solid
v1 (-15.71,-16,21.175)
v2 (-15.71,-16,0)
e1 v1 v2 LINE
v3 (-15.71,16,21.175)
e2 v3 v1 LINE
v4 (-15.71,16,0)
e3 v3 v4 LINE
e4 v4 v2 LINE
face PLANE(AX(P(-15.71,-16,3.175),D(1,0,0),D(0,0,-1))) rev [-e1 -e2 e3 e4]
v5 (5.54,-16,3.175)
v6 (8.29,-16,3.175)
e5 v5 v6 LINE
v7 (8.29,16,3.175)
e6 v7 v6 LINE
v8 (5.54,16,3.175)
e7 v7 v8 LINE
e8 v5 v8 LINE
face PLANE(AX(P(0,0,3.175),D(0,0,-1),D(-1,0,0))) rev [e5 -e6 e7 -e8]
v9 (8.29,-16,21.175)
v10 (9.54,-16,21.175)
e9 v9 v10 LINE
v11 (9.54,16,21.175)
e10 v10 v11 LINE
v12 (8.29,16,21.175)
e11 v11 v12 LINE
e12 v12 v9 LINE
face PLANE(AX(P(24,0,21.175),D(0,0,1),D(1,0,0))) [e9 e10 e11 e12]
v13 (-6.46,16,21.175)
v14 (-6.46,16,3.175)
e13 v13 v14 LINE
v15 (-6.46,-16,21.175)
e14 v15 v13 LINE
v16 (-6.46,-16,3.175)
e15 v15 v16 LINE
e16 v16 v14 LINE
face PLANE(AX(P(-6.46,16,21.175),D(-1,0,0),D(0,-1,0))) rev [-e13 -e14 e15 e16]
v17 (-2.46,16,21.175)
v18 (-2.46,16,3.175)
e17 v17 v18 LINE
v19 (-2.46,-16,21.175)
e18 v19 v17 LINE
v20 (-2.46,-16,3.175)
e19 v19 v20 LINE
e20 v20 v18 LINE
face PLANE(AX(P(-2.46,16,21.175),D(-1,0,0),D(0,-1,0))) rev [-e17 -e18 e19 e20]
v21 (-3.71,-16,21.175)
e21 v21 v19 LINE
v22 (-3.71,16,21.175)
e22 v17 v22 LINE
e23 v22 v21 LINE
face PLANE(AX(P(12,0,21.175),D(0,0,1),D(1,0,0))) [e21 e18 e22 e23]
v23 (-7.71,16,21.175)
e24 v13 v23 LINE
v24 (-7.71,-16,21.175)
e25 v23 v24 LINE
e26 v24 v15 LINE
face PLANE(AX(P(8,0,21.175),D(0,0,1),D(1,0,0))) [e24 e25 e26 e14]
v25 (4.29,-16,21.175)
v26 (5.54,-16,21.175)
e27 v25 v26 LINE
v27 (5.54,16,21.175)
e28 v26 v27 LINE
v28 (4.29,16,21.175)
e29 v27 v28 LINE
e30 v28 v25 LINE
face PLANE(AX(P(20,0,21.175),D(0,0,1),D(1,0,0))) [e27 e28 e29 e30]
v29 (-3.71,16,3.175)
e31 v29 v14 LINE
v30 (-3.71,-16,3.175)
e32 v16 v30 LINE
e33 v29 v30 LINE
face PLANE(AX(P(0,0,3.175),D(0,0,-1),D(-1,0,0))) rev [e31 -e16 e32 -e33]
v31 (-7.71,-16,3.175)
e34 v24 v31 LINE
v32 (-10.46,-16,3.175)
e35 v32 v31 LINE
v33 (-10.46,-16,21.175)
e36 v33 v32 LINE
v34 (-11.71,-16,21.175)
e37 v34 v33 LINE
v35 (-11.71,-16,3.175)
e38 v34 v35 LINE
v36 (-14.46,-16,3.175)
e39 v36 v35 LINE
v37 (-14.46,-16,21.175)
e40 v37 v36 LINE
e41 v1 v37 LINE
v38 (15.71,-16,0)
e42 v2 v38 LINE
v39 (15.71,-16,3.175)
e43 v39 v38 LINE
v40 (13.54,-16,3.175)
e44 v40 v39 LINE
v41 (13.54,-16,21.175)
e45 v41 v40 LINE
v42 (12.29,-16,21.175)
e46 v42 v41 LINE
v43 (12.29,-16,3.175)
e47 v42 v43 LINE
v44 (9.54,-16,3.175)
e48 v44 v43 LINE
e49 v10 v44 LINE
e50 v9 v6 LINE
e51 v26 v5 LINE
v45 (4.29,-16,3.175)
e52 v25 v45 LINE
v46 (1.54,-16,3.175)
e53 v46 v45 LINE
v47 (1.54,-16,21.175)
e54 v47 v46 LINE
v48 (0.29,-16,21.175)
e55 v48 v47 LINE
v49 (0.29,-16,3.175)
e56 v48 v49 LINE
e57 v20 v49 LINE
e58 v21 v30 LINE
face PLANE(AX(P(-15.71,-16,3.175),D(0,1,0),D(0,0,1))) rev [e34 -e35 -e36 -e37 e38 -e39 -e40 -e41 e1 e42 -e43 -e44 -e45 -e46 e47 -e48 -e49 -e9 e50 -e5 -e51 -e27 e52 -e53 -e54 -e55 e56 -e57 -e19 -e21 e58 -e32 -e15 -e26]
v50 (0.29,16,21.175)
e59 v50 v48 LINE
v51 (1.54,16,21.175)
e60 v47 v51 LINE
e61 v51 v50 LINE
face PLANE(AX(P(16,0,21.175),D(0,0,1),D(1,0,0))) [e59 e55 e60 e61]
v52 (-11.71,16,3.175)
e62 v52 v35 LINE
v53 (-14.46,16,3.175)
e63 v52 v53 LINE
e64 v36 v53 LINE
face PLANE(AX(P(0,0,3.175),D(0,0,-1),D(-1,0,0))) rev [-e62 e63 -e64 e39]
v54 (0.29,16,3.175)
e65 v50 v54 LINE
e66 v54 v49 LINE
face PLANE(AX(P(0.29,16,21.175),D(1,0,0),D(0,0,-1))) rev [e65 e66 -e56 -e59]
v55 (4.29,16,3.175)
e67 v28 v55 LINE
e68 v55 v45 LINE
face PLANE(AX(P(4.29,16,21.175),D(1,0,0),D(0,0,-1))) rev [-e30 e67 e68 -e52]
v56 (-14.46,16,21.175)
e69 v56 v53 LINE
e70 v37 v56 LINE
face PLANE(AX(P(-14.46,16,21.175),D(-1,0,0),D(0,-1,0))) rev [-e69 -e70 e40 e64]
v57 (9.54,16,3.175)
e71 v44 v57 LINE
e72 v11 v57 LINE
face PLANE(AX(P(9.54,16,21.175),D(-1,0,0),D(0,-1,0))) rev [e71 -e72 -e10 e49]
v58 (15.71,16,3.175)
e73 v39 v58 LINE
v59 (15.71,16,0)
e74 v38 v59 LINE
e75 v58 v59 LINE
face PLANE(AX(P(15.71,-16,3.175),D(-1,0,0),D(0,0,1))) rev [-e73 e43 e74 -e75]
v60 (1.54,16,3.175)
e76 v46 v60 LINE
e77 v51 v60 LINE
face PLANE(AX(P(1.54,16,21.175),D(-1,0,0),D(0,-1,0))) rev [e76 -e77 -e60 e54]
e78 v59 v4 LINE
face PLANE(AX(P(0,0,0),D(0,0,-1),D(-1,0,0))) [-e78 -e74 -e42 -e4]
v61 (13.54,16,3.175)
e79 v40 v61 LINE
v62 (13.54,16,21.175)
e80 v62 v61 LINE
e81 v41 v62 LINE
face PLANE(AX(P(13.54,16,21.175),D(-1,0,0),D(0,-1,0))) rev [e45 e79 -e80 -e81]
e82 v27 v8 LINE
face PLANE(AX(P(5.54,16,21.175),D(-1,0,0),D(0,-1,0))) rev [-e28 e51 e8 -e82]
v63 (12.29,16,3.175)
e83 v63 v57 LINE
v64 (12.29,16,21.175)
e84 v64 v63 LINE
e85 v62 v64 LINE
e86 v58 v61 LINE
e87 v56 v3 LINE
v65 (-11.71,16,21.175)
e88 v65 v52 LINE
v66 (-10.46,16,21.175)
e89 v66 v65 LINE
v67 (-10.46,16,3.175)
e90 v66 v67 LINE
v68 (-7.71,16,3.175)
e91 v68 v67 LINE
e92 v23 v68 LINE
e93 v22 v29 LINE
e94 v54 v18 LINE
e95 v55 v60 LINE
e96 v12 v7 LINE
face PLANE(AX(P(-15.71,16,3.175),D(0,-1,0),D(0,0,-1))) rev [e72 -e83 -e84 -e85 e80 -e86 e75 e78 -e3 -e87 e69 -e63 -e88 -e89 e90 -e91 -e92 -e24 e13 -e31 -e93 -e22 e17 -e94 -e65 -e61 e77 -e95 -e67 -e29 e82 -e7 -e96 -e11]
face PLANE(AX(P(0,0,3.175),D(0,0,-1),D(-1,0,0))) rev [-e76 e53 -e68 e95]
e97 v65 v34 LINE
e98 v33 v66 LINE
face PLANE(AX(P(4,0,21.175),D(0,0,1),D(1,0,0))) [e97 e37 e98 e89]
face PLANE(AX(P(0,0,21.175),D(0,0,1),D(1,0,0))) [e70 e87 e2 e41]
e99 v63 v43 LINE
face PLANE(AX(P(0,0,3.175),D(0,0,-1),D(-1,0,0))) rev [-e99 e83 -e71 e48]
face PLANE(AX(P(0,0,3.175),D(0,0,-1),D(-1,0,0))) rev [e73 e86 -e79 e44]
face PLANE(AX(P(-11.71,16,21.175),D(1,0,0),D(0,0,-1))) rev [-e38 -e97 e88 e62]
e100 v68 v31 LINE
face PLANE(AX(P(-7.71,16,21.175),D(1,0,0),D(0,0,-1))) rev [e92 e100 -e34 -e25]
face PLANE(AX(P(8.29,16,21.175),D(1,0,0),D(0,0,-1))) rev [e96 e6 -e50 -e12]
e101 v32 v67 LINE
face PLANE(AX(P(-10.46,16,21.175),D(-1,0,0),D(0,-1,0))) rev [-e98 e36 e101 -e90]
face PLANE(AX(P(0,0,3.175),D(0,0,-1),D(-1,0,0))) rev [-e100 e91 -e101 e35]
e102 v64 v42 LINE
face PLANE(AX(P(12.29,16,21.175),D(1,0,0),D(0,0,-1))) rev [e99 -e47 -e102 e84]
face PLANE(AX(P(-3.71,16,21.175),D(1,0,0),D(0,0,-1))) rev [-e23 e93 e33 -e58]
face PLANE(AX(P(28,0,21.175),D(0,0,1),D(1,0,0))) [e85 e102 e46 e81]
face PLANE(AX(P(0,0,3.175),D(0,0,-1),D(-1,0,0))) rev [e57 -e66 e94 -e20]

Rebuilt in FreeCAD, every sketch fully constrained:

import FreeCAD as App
import Part
import Sketcher
Q = App.Units.Quantity


def add_polygon(sketch, points):
    """Adds a closed chain of lines whose ends are joined by coincident constraints."""
    first, n = sketch.GeometryCount, len(points)
    for a, b in zip(points, points[1:] + points[:1]):
        sketch.addGeometry(Part.LineSegment(App.Vector(*a, 0), App.Vector(*b, 0)), False)
    for i in range(n):
        sketch.addConstraint(Sketcher.Constraint("Coincident", first + i, 2, first + (i + 1) % n, 1))

doc = App.newDocument("Part")
params = doc.addObject("Spreadsheet::Sheet", "Params")
for row, (alias, value) in enumerate([
    ("sketch1_height", "32 mm"),
    ("sketch1_width", "31.42 mm"),
    ("pad1_length", "3.175 mm"),
    ("sketch2_height", "32 mm"),
    ("sketch2_width", "1.25 mm"),
    ("pad2_length", "18 mm"),
    ("linearpattern_pitch", "4 mm"),
], start=1):
    params.set(f"A{row}", alias)
    params.set(f"B{row}", "=" + value)
    params.setAlias(f"B{row}", alias)

body = doc.addObject("PartDesign::Body", "Body")

# Sketch on XY plane
sketch1 = doc.addObject("Sketcher::SketchObject", "Sketch")
body.addObject(sketch1)
sketch1.AttachmentSupport = (doc.XY_Plane, [""])
sketch1.MapMode = "FlatFace"
add_polygon(sketch1, [(-15.71, 16), (-15.71, -16), (15.71, -16), (15.71, 16)])  # lines 0-3
sketch1.addConstraint([
    Sketcher.Constraint("Vertical", 0),
    Sketcher.Constraint("Horizontal", 1),
    Sketcher.Constraint("Vertical", 2),
    Sketcher.Constraint("Horizontal", 3),
    Sketcher.Constraint("Symmetric", 0, 2, 2, 2, -1, 1),
    Sketcher.Constraint("DistanceY", 0, 2, 0, 1, Q("32 mm")),
    Sketcher.Constraint("DistanceX", 1, 1, 1, 2, Q("31.42 mm")),
])
sketch1.setExpression("Constraints[9]", "Params.sketch1_height")
sketch1.setExpression("Constraints[10]", "Params.sketch1_width")
pad1 = doc.addObject("PartDesign::Pad", "Pad")
body.addObject(pad1)
pad1.Profile = sketch1
pad1.setExpression("Length", "Params.pad1_length")

# Sketch on XY plane
sketch2 = doc.addObject("Sketcher::SketchObject", "Sketch001")
body.addObject(sketch2)
sketch2.AttachmentSupport = (doc.XY_Plane, [""])
sketch2.MapMode = "FlatFace"
sketch2.AttachmentOffset = App.Placement(App.Vector(0, 0, 3.175), App.Rotation())
add_polygon(sketch2, [(-15.71, 16), (-15.71, -16), (-14.46, -16), (-14.46, 16)])  # lines 0-3
sketch2.addConstraint([
    Sketcher.Constraint("Vertical", 0),
    Sketcher.Constraint("Horizontal", 1),
    Sketcher.Constraint("Vertical", 2),
    Sketcher.Constraint("Horizontal", 3),
    Sketcher.Constraint("DistanceY", 0, 2, 0, 1, Q("32 mm")),
    Sketcher.Constraint("DistanceY", 0, 2, -1, 1, Q("16 mm")),
    Sketcher.Constraint("DistanceX", 1, 1, 1, 2, Q("1.25 mm")),
    Sketcher.Constraint("DistanceX", 0, 2, -1, 1, Q("15.71 mm")),
])
sketch2.setExpression("Constraints[8]", "Params.sketch2_height")
sketch2.setExpression("Constraints[10]", "Params.sketch2_width")
pad2 = doc.addObject("PartDesign::Pad", "Pad001")
body.addObject(pad2)
pad2.Profile = sketch2
pad2.setExpression("Length", "Params.pad2_length")
doc.recompute()

linearpattern = doc.addObject("PartDesign::LinearPattern", "LinearPattern")
body.addObject(linearpattern)
linearpattern.Originals = [pad2]
linearpattern.Direction = (doc.X_Axis, [""])
linearpattern.Mode = "offset"
linearpattern.setExpression("Offset", "Params.linearpattern_pitch")
linearpattern.Occurrences = 8
body.Tip = linearpattern

doc.recompute()
